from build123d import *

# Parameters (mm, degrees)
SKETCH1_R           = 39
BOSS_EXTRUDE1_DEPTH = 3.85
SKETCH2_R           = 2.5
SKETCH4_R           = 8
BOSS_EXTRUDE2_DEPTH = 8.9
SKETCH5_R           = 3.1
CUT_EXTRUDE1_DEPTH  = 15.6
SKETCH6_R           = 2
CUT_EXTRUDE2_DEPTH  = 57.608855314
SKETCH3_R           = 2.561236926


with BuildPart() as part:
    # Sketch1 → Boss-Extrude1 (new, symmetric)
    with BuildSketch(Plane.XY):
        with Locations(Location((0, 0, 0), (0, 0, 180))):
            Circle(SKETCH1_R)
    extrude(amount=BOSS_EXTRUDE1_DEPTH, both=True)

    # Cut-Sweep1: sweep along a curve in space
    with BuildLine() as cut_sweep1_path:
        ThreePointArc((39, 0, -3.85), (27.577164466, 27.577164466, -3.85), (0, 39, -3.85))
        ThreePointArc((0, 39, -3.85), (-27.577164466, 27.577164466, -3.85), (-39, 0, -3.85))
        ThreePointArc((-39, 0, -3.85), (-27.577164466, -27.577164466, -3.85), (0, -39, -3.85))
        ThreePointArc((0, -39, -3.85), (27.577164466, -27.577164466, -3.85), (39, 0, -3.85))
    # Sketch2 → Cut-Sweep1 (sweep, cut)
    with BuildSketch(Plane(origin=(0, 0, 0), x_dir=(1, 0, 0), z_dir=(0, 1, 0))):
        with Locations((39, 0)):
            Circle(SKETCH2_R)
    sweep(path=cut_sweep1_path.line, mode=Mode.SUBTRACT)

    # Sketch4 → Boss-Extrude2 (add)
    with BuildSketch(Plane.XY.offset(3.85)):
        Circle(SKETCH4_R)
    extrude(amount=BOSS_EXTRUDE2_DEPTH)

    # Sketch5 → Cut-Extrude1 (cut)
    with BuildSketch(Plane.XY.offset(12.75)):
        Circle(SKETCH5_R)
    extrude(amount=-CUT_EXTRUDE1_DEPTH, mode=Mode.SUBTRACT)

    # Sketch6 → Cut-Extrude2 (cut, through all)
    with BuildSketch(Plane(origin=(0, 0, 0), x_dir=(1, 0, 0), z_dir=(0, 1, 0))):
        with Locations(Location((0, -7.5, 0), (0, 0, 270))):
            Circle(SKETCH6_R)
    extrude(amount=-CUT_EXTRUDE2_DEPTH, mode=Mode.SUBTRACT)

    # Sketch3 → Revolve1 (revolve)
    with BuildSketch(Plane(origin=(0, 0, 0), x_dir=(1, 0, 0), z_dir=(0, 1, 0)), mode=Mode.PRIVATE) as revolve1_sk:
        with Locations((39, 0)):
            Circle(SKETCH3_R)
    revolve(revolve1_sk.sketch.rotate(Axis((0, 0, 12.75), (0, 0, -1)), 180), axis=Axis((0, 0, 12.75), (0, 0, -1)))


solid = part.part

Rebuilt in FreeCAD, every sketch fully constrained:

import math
import FreeCAD as App
import Part
import Sketcher

V = App.Vector
Q = App.Units.Quantity

doc = App.newDocument("Part")
body = doc.addObject("PartDesign::Body", "Body")

# Sketch on XY plane
sketch1 = doc.addObject("Sketcher::SketchObject", "Sketch")
body.addObject(sketch1)
sketch1.AttachmentSupport = (doc.XY_Plane, [""])
sketch1.MapMode = "FlatFace"
sketch1.addGeometry(Part.Circle(V(0, 0, 0), V(0, 0, 1), 39), False)
sketch1.addConstraint([
    Sketcher.Constraint("Coincident", 0, 3, -1, 1),
    Sketcher.Constraint("Diameter", 0, Q("78 mm")),
])
pad1 = doc.addObject("PartDesign::Pad", "Pad")
body.addObject(pad1)
pad1.Profile = sketch1
pad1.Length = 7.7
pad1.Midplane = True

# Sketch on XZ plane
sketch2 = doc.addObject("Sketcher::SketchObject", "Sketch001")
body.addObject(sketch2)
sketch2.AttachmentSupport = (doc.XZ_Plane, [""])
sketch2.MapMode = "FlatFace"
sketch2.addGeometry(Part.Circle(V(39, 0, 0), V(0, 0, 1), 2.5), False)
sketch2.addConstraint([
    Sketcher.Constraint("PointOnObject", 0, 3, -1),
    Sketcher.Constraint("Diameter", 0, Q("5 mm")),
    Sketcher.Constraint("DistanceX", -1, 1, 0, 3, Q("39 mm")),
])

# Sketch on XY plane
sketch3 = doc.addObject("Sketcher::SketchObject", "Sketch002")
body.addObject(sketch3)
sketch3.AttachmentSupport = (doc.XY_Plane, [""])
sketch3.MapMode = "FlatFace"
sketch3.AttachmentOffset = App.Placement(V(0, 0, -3.85), App.Rotation())
sketch3.addGeometry([
    Part.ArcOfCircle(Part.Circle(V(0, 0, 0), V(0, 0, 1), 39), math.radians(0), math.radians(90)),
    Part.ArcOfCircle(Part.Circle(V(0, 0, 0), V(0, 0, 1), 39), math.radians(90), math.radians(180)),
    Part.ArcOfCircle(Part.Circle(V(0, 0, 0), V(0, 0, 1), 39), math.radians(-180), math.radians(-90)),
    Part.ArcOfCircle(Part.Circle(V(0, 0, 0), V(0, 0, 1), 39), math.radians(-90), math.radians(0)),
], False)
sketch3.addConstraint([
    Sketcher.Constraint("Tangent", 0, 2, 1, 1),
    Sketcher.Constraint("Tangent", 1, 2, 2, 1),
    Sketcher.Constraint("Tangent", 2, 2, 3, 1),
    Sketcher.Constraint("Tangent", 3, 2, 0, 1),
    Sketcher.Constraint("Coincident", 0, 3, -1, 1),
    Sketcher.Constraint("Equal", 0, 1),
    Sketcher.Constraint("PointOnObject", 0, 2, -2),
    Sketcher.Constraint("PointOnObject", 1, 2, -1),
    Sketcher.Constraint("PointOnObject", 2, 2, -2),
    Sketcher.Constraint("PointOnObject", 3, 2, -1),
    Sketcher.Constraint("Radius", 0, Q("39 mm")),
])
doc.recompute()

subtractivepipe = doc.addObject("PartDesign::SubtractivePipe", "SubtractivePipe")
body.addObject(subtractivepipe)
subtractivepipe.Profile = sketch2
subtractivepipe.Spine = (sketch3, ["Edge1", "Edge2", "Edge3", "Edge4"])

# Sketch on XY plane
sketch4 = doc.addObject("Sketcher::SketchObject", "Sketch003")
body.addObject(sketch4)
sketch4.AttachmentSupport = (doc.XY_Plane, [""])
sketch4.MapMode = "FlatFace"
sketch4.AttachmentOffset = App.Placement(V(0, 0, 3.85), App.Rotation())
sketch4.addGeometry(Part.Circle(V(0, 0, 0), V(0, 0, 1), 8), False)
sketch4.addConstraint([
    Sketcher.Constraint("Coincident", 0, 3, -1, 1),
    Sketcher.Constraint("Diameter", 0, Q("16 mm")),
])
pad2 = doc.addObject("PartDesign::Pad", "Pad001")
body.addObject(pad2)
pad2.Profile = sketch4
pad2.Length = 8.9

# Sketch on XY plane
sketch5 = doc.addObject("Sketcher::SketchObject", "Sketch004")
body.addObject(sketch5)
sketch5.AttachmentSupport = (doc.XY_Plane, [""])
sketch5.MapMode = "FlatFace"
sketch5.AttachmentOffset = App.Placement(V(0, 0, 12.75), App.Rotation())
sketch5.addGeometry(Part.Circle(V(0, 0, 0), V(0, 0, 1), 3.1), False)
sketch5.addConstraint([
    Sketcher.Constraint("Coincident", 0, 3, -1, 1),
    Sketcher.Constraint("Diameter", 0, Q("6.2 mm")),
])
pocket1 = doc.addObject("PartDesign::Pocket", "Pocket")
body.addObject(pocket1)
pocket1.Profile = sketch5
pocket1.Length = 15.6

# Sketch on XZ plane
sketch6 = doc.addObject("Sketcher::SketchObject", "Sketch005")
body.addObject(sketch6)
sketch6.AttachmentSupport = (doc.XZ_Plane, [""])
sketch6.MapMode = "FlatFace"
sketch6.addGeometry(Part.Circle(V(0, 7.5, 0), V(0, 0, 1), 2), False)
sketch6.addConstraint([
    Sketcher.Constraint("PointOnObject", 0, 3, -2),
    Sketcher.Constraint("Diameter", 0, Q("4 mm")),
    Sketcher.Constraint("DistanceY", -1, 1, 0, 3, Q("7.5 mm")),
])
pocket2 = doc.addObject("PartDesign::Pocket", "Pocket001")
body.addObject(pocket2)
pocket2.Profile = sketch6
pocket2.Type = "ThroughAll"
pocket2.Reversed = True

# Sketch on XZ plane
sketch7 = doc.addObject("Sketcher::SketchObject", "Sketch006")
body.addObject(sketch7)
sketch7.AttachmentSupport = (doc.XZ_Plane, [""])
sketch7.MapMode = "FlatFace"
sketch7.addGeometry(Part.Circle(V(39, 0, 0), V(0, 0, 1), 2.6), False)
sketch7.addConstraint([
    Sketcher.Constraint("PointOnObject", 0, 3, -1),
    Sketcher.Constraint("DistanceX", -1, 1, 0, 3, Q("39 mm")),
    Sketcher.Constraint("Diameter", 0, Q("5.122474 mm")),
])
revolution = doc.addObject("PartDesign::Revolution", "Revolution")
body.addObject(revolution)
revolution.Profile = sketch7
revolution.ReferenceAxis = (sketch7, ["V_Axis"])
revolution.Angle = 360

doc.recompute()
